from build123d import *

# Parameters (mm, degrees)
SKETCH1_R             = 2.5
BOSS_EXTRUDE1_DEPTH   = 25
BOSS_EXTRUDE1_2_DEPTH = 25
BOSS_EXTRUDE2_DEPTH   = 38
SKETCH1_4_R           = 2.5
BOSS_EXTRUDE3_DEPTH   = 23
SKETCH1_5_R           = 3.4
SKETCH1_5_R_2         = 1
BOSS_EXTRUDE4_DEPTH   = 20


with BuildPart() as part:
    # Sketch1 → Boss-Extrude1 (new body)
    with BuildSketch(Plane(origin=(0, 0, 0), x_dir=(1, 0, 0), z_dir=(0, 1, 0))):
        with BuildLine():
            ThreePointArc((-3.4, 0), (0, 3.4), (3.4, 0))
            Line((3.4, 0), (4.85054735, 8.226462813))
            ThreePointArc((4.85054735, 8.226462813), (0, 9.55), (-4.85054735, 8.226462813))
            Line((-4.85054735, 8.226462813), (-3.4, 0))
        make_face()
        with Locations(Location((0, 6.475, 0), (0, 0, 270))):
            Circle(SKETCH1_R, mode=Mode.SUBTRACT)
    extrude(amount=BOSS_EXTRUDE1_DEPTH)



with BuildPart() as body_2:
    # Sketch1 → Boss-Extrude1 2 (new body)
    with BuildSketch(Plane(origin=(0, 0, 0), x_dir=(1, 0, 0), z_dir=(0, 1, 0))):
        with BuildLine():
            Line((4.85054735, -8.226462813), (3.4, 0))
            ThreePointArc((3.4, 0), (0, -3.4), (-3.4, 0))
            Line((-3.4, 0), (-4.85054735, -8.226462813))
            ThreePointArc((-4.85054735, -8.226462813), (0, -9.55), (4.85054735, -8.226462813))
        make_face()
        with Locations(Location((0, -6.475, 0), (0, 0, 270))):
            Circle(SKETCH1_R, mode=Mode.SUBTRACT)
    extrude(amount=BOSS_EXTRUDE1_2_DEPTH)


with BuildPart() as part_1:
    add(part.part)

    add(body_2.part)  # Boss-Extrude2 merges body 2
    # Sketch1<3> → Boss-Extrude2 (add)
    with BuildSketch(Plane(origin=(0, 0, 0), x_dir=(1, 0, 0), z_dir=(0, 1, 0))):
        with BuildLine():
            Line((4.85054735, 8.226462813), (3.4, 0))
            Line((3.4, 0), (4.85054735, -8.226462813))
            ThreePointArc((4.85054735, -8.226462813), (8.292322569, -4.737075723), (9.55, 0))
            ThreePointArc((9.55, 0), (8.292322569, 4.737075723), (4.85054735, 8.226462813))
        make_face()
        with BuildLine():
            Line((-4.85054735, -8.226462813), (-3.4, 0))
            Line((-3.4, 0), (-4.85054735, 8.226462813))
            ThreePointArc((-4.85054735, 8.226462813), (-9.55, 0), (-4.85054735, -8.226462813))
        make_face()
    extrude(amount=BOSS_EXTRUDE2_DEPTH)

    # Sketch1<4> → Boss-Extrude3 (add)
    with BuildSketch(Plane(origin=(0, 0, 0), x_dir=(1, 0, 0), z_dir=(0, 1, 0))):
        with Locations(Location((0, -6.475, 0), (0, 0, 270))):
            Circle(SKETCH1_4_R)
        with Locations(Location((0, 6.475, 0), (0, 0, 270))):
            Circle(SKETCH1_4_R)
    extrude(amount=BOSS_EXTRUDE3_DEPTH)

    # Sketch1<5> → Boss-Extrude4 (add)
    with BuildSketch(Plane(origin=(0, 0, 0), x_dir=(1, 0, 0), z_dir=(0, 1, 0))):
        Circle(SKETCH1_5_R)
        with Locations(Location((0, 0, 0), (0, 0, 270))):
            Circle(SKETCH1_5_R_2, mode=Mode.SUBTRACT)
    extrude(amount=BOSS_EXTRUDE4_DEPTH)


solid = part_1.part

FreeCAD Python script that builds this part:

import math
import FreeCAD as App
import Part
import Sketcher
Q = App.Units.Quantity

doc = App.newDocument("Part")
params = doc.addObject("Spreadsheet::Sheet", "Params")
for row, (alias, value) in enumerate([
    ("sketch1_diameter", "5 mm"),
    ("sketch1_radius", "3.4 mm"),
    ("sketch1_radius2", "9.55 mm"),
    ("pad1_length", "25 mm"),
    ("sketch2_diameter", "5 mm"),
    ("sketch2_radius", "3.4 mm"),
    ("sketch2_radius2", "9.55 mm"),
    ("pad2_length", "25 mm"),
    ("sketch3_radius", "9.55 mm"),
    ("pad3_length", "38 mm"),
    ("sketch4_diameter", "5 mm"),
    ("pad4_length", "23 mm"),
    ("sketch5_diameter", "2 mm"),
    ("sketch5_diameter2", "6.8 mm"),
    ("pad5_length", "20 mm"),
], start=1):
    params.set(f"A{row}", alias)
    params.set(f"B{row}", "=" + value)
    params.setAlias(f"B{row}", alias)

body = doc.addObject("PartDesign::Body", "Body")

# Sketch on XZ plane
sketch1 = body.newObject("Sketcher::SketchObject", "Sketch")
sketch1.AttachmentSupport = (doc.getObject("XZ_Plane"), [""])
sketch1.MapMode = "FlatFace"
sketch1.addGeometry(Part.ArcOfCircle(Part.Circle(App.Vector(0, 0, 0), App.Vector(0, 0, 1), 3.4), math.radians(180), math.radians(360)), False)
sketch1.addGeometry(Part.LineSegment(App.Vector(3.4, 0, 0), App.Vector(4.850547, -8.226463, 0)), False)
sketch1.addGeometry(Part.ArcOfCircle(Part.Circle(App.Vector(0, 0, 0), App.Vector(0, 0, 1), 9.55), math.radians(-120.524764), math.radians(-59.475236)), False)
sketch1.addGeometry(Part.LineSegment(App.Vector(-4.850547, -8.226463, 0), App.Vector(-3.4, 0, 0)), False)
sketch1.addGeometry(Part.Circle(App.Vector(0, -6.475, 0), App.Vector(0, 0, 1), 2.5), False)
sketch1.addConstraint(Sketcher.Constraint("Coincident", 0, 2, 1, 1))
sketch1.addConstraint(Sketcher.Constraint("Coincident", 1, 2, 2, 2))
sketch1.addConstraint(Sketcher.Constraint("Coincident", 2, 1, 3, 1))
sketch1.addConstraint(Sketcher.Constraint("Coincident", 3, 2, 0, 1))
sketch1.addConstraint(Sketcher.Constraint("Coincident", 0, 3, -1, 1))
sketch1.addConstraint(Sketcher.Constraint("Coincident", 2, 3, -1, 1))
sketch1.addConstraint(Sketcher.Constraint("PointOnObject", 4, 3, -2))
sketch1.addConstraint(Sketcher.Constraint("PointOnObject", 0, 2, -1))
sketch1.addConstraint(Sketcher.Constraint("PointOnObject", 3, 2, -1))
sketch1.addConstraint(Sketcher.Constraint("Horizontal", 1, 2, 2, 1))
sketch1.addConstraint(Sketcher.Constraint("Diameter", 4, Q("5 mm")))
sketch1.addConstraint(Sketcher.Constraint("Radius", 0, Q("3.4 mm")))
sketch1.addConstraint(Sketcher.Constraint("Angle", 1, Q("-80 deg")))
sketch1.addConstraint(Sketcher.Constraint("Radius", 2, Q("9.55 mm")))
sketch1.addConstraint(Sketcher.Constraint("DistanceY", 4, 3, -1, 1, Q("6.475 mm")))
sketch1.setExpression("Constraints[10]", "Params.sketch1_diameter")
sketch1.setExpression("Constraints[11]", "Params.sketch1_radius")
sketch1.setExpression("Constraints[13]", "Params.sketch1_radius2")
pad1 = body.newObject("PartDesign::Pad", "Pad")
pad1.Profile = sketch1
pad1.setExpression("Length", "Params.pad1_length")
pad1.Reversed = True
body2 = doc.addObject("PartDesign::Body", "Body001")

# Sketch on XZ plane
sketch2 = body2.newObject("Sketcher::SketchObject", "Sketch001")
sketch2.AttachmentSupport = (doc.getObject("XZ_Plane001"), [""])
sketch2.MapMode = "FlatFace"
sketch2.addGeometry(Part.LineSegment(App.Vector(4.850547, 8.226463, 0), App.Vector(3.4, 0, 0)), False)
sketch2.addGeometry(Part.ArcOfCircle(Part.Circle(App.Vector(0, 0, 0), App.Vector(0, 0, 1), 3.4), math.radians(0), math.radians(180)), False)
sketch2.addGeometry(Part.LineSegment(App.Vector(-3.4, 0, 0), App.Vector(-4.850547, 8.226463, 0)), False)
sketch2.addGeometry(Part.ArcOfCircle(Part.Circle(App.Vector(0, 0, 0), App.Vector(0, 0, 1), 9.55), math.radians(59.475236), math.radians(120.524764)), False)
sketch2.addGeometry(Part.Circle(App.Vector(0, 6.475, 0), App.Vector(0, 0, 1), 2.5), False)
sketch2.addConstraint(Sketcher.Constraint("Coincident", 0, 2, 1, 1))
sketch2.addConstraint(Sketcher.Constraint("Coincident", 1, 2, 2, 1))
sketch2.addConstraint(Sketcher.Constraint("Coincident", 2, 2, 3, 2))
sketch2.addConstraint(Sketcher.Constraint("Coincident", 3, 1, 0, 1))
sketch2.addConstraint(Sketcher.Constraint("Coincident", 1, 3, -1, 1))
sketch2.addConstraint(Sketcher.Constraint("Coincident", 3, 3, -1, 1))
sketch2.addConstraint(Sketcher.Constraint("PointOnObject", 4, 3, -2))
sketch2.addConstraint(Sketcher.Constraint("PointOnObject", 0, 2, -1))
sketch2.addConstraint(Sketcher.Constraint("PointOnObject", 1, 2, -1))
sketch2.addConstraint(Sketcher.Constraint("Horizontal", 2, 2, 3, 1))
sketch2.addConstraint(Sketcher.Constraint("Diameter", 4, Q("5 mm")))
sketch2.addConstraint(Sketcher.Constraint("Radius", 1, Q("3.4 mm")))
sketch2.addConstraint(Sketcher.Constraint("Angle", 0, Q("-100 deg")))
sketch2.addConstraint(Sketcher.Constraint("Radius", 3, Q("9.55 mm")))
sketch2.addConstraint(Sketcher.Constraint("DistanceY", -1, 1, 4, 3, Q("6.475 mm")))
sketch2.setExpression("Constraints[10]", "Params.sketch2_diameter")
sketch2.setExpression("Constraints[11]", "Params.sketch2_radius")
sketch2.setExpression("Constraints[13]", "Params.sketch2_radius2")
pad2 = body2.newObject("PartDesign::Pad", "Pad001")
pad2.Profile = sketch2
pad2.setExpression("Length", "Params.pad2_length")
pad2.Reversed = True
body.AllowCompound = True
doc.recompute()

boolean = body.newObject("PartDesign::Boolean", "Boolean")
boolean.Type = "Fuse"
boolean.addObjects([body2])

# Sketch on XZ plane
sketch3 = body.newObject("Sketcher::SketchObject", "Sketch002")
sketch3.AttachmentSupport = (doc.getObject("XZ_Plane"), [""])
sketch3.MapMode = "FlatFace"
sketch3.addGeometry(Part.LineSegment(App.Vector(4.850547, -8.226463, 0), App.Vector(3.4, 0, 0)), False)
sketch3.addGeometry(Part.LineSegment(App.Vector(3.4, 0, 0), App.Vector(4.850547, 8.226463, 0)), False)
sketch3.addGeometry(Part.ArcOfCircle(Part.Circle(App.Vector(0, 0, 0), App.Vector(0, 0, 1), 9.55), math.radians(0), math.radians(59.475236)), False)
sketch3.addGeometry(Part.ArcOfCircle(Part.Circle(App.Vector(0, 0, 0), App.Vector(0, 0, 1), 9.55), math.radians(-59.475236), math.radians(0)), False)
sketch3.addGeometry(Part.LineSegment(App.Vector(-4.850547, 8.226463, 0), App.Vector(-3.4, 0, 0)), False)
sketch3.addGeometry(Part.LineSegment(App.Vector(-3.4, 0, 0), App.Vector(-4.850547, -8.226463, 0)), False)
sketch3.addGeometry(Part.ArcOfCircle(Part.Circle(App.Vector(0, 0, 0), App.Vector(0, 0, 1), 9.55), math.radians(120.524764), math.radians(239.475236)), False)
sketch3.addConstraint(Sketcher.Constraint("Coincident", 0, 2, 1, 1))
sketch3.addConstraint(Sketcher.Constraint("Coincident", 1, 2, 2, 2))
sketch3.addConstraint(Sketcher.Constraint("Tangent", 2, 1, 3, 2))
sketch3.addConstraint(Sketcher.Constraint("Coincident", 3, 1, 0, 1))
sketch3.addConstraint(Sketcher.Constraint("Coincident", 4, 2, 5, 1))
sketch3.addConstraint(Sketcher.Constraint("Coincident", 5, 2, 6, 2))
sketch3.addConstraint(Sketcher.Constraint("Coincident", 6, 1, 4, 1))
sketch3.addConstraint(Sketcher.Constraint("Coincident", 2, 3, -1, 1))
sketch3.addConstraint(Sketcher.Constraint("Coincident", 6, 3, -1, 1))
sketch3.addConstraint(Sketcher.Constraint("Equal", 2, 3))
sketch3.addConstraint(Sketcher.Constraint("Equal", 3, 6))
sketch3.addConstraint(Sketcher.Constraint("Symmetric", 0, 2, 4, 2, -1, 1))
sketch3.addConstraint(Sketcher.Constraint("PointOnObject", 0, 2, -1))
sketch3.addConstraint(Sketcher.Constraint("PointOnObject", 2, 1, -1))
sketch3.addConstraint(Sketcher.Constraint("Parallel", 0, 4))
sketch3.addConstraint(Sketcher.Constraint("Parallel", 1, 5))
sketch3.addConstraint(Sketcher.Constraint("Horizontal", 3, 1, 5, 2))
sketch3.addConstraint(Sketcher.Constraint("Angle", 0, Q("100 deg")))
sketch3.addConstraint(Sketcher.Constraint("Radius", 2, Q("9.55 mm")))
sketch3.addConstraint(Sketcher.Constraint("DistanceX", -1, 1, 0, 2, Q("3.4 mm")))
sketch3.setExpression("Constraints[18]", "Params.sketch3_radius")
pad3 = body.newObject("PartDesign::Pad", "Pad002")
pad3.Profile = sketch3
pad3.setExpression("Length", "Params.pad3_length")
pad3.Reversed = True

# Sketch on XZ plane
sketch4 = body.newObject("Sketcher::SketchObject", "Sketch003")
sketch4.AttachmentSupport = (doc.getObject("XZ_Plane"), [""])
sketch4.MapMode = "FlatFace"
sketch4.addGeometry(Part.Circle(App.Vector(0, 6.475, 0), App.Vector(0, 0, 1), 2.5), False)
sketch4.addGeometry(Part.Circle(App.Vector(0, -6.475, 0), App.Vector(0, 0, 1), 2.5), False)
sketch4.addConstraint(Sketcher.Constraint("Equal", 0, 1))
sketch4.addConstraint(Sketcher.Constraint("Symmetric", 0, 3, 1, 3, -1, 1))
sketch4.addConstraint(Sketcher.Constraint("PointOnObject", 0, 3, -2))
sketch4.addConstraint(Sketcher.Constraint("Diameter", 0, Q("5 mm")))
sketch4.addConstraint(Sketcher.Constraint("DistanceY", 1, 3, 0, 3, Q("12.95 mm")))
sketch4.setExpression("Constraints[3]", "Params.sketch4_diameter")
pad4 = body.newObject("PartDesign::Pad", "Pad003")
pad4.Profile = sketch4
pad4.setExpression("Length", "Params.pad4_length")
pad4.Reversed = True

# Sketch on XZ plane
sketch5 = body.newObject("Sketcher::SketchObject", "Sketch004")
sketch5.AttachmentSupport = (doc.getObject("XZ_Plane"), [""])
sketch5.MapMode = "FlatFace"
sketch5.addGeometry(Part.Circle(App.Vector(0, 0, 0), App.Vector(0, 0, 1), 3.4), False)
sketch5.addGeometry(Part.Circle(App.Vector(0, 0, 0), App.Vector(0, 0, 1), 1), False)
sketch5.addConstraint(Sketcher.Constraint("Coincident", 0, 3, -1, 1))
sketch5.addConstraint(Sketcher.Constraint("Coincident", 1, 3, -1, 1))
sketch5.addConstraint(Sketcher.Constraint("Diameter", 1, Q("2 mm")))
sketch5.addConstraint(Sketcher.Constraint("Diameter", 0, Q("6.8 mm")))
sketch5.setExpression("Constraints[2]", "Params.sketch5_diameter")
sketch5.setExpression("Constraints[3]", "Params.sketch5_diameter2")
pad5 = body.newObject("PartDesign::Pad", "Pad004")
pad5.Profile = sketch5
pad5.setExpression("Length", "Params.pad5_length")
pad5.Reversed = True

doc.recompute()
